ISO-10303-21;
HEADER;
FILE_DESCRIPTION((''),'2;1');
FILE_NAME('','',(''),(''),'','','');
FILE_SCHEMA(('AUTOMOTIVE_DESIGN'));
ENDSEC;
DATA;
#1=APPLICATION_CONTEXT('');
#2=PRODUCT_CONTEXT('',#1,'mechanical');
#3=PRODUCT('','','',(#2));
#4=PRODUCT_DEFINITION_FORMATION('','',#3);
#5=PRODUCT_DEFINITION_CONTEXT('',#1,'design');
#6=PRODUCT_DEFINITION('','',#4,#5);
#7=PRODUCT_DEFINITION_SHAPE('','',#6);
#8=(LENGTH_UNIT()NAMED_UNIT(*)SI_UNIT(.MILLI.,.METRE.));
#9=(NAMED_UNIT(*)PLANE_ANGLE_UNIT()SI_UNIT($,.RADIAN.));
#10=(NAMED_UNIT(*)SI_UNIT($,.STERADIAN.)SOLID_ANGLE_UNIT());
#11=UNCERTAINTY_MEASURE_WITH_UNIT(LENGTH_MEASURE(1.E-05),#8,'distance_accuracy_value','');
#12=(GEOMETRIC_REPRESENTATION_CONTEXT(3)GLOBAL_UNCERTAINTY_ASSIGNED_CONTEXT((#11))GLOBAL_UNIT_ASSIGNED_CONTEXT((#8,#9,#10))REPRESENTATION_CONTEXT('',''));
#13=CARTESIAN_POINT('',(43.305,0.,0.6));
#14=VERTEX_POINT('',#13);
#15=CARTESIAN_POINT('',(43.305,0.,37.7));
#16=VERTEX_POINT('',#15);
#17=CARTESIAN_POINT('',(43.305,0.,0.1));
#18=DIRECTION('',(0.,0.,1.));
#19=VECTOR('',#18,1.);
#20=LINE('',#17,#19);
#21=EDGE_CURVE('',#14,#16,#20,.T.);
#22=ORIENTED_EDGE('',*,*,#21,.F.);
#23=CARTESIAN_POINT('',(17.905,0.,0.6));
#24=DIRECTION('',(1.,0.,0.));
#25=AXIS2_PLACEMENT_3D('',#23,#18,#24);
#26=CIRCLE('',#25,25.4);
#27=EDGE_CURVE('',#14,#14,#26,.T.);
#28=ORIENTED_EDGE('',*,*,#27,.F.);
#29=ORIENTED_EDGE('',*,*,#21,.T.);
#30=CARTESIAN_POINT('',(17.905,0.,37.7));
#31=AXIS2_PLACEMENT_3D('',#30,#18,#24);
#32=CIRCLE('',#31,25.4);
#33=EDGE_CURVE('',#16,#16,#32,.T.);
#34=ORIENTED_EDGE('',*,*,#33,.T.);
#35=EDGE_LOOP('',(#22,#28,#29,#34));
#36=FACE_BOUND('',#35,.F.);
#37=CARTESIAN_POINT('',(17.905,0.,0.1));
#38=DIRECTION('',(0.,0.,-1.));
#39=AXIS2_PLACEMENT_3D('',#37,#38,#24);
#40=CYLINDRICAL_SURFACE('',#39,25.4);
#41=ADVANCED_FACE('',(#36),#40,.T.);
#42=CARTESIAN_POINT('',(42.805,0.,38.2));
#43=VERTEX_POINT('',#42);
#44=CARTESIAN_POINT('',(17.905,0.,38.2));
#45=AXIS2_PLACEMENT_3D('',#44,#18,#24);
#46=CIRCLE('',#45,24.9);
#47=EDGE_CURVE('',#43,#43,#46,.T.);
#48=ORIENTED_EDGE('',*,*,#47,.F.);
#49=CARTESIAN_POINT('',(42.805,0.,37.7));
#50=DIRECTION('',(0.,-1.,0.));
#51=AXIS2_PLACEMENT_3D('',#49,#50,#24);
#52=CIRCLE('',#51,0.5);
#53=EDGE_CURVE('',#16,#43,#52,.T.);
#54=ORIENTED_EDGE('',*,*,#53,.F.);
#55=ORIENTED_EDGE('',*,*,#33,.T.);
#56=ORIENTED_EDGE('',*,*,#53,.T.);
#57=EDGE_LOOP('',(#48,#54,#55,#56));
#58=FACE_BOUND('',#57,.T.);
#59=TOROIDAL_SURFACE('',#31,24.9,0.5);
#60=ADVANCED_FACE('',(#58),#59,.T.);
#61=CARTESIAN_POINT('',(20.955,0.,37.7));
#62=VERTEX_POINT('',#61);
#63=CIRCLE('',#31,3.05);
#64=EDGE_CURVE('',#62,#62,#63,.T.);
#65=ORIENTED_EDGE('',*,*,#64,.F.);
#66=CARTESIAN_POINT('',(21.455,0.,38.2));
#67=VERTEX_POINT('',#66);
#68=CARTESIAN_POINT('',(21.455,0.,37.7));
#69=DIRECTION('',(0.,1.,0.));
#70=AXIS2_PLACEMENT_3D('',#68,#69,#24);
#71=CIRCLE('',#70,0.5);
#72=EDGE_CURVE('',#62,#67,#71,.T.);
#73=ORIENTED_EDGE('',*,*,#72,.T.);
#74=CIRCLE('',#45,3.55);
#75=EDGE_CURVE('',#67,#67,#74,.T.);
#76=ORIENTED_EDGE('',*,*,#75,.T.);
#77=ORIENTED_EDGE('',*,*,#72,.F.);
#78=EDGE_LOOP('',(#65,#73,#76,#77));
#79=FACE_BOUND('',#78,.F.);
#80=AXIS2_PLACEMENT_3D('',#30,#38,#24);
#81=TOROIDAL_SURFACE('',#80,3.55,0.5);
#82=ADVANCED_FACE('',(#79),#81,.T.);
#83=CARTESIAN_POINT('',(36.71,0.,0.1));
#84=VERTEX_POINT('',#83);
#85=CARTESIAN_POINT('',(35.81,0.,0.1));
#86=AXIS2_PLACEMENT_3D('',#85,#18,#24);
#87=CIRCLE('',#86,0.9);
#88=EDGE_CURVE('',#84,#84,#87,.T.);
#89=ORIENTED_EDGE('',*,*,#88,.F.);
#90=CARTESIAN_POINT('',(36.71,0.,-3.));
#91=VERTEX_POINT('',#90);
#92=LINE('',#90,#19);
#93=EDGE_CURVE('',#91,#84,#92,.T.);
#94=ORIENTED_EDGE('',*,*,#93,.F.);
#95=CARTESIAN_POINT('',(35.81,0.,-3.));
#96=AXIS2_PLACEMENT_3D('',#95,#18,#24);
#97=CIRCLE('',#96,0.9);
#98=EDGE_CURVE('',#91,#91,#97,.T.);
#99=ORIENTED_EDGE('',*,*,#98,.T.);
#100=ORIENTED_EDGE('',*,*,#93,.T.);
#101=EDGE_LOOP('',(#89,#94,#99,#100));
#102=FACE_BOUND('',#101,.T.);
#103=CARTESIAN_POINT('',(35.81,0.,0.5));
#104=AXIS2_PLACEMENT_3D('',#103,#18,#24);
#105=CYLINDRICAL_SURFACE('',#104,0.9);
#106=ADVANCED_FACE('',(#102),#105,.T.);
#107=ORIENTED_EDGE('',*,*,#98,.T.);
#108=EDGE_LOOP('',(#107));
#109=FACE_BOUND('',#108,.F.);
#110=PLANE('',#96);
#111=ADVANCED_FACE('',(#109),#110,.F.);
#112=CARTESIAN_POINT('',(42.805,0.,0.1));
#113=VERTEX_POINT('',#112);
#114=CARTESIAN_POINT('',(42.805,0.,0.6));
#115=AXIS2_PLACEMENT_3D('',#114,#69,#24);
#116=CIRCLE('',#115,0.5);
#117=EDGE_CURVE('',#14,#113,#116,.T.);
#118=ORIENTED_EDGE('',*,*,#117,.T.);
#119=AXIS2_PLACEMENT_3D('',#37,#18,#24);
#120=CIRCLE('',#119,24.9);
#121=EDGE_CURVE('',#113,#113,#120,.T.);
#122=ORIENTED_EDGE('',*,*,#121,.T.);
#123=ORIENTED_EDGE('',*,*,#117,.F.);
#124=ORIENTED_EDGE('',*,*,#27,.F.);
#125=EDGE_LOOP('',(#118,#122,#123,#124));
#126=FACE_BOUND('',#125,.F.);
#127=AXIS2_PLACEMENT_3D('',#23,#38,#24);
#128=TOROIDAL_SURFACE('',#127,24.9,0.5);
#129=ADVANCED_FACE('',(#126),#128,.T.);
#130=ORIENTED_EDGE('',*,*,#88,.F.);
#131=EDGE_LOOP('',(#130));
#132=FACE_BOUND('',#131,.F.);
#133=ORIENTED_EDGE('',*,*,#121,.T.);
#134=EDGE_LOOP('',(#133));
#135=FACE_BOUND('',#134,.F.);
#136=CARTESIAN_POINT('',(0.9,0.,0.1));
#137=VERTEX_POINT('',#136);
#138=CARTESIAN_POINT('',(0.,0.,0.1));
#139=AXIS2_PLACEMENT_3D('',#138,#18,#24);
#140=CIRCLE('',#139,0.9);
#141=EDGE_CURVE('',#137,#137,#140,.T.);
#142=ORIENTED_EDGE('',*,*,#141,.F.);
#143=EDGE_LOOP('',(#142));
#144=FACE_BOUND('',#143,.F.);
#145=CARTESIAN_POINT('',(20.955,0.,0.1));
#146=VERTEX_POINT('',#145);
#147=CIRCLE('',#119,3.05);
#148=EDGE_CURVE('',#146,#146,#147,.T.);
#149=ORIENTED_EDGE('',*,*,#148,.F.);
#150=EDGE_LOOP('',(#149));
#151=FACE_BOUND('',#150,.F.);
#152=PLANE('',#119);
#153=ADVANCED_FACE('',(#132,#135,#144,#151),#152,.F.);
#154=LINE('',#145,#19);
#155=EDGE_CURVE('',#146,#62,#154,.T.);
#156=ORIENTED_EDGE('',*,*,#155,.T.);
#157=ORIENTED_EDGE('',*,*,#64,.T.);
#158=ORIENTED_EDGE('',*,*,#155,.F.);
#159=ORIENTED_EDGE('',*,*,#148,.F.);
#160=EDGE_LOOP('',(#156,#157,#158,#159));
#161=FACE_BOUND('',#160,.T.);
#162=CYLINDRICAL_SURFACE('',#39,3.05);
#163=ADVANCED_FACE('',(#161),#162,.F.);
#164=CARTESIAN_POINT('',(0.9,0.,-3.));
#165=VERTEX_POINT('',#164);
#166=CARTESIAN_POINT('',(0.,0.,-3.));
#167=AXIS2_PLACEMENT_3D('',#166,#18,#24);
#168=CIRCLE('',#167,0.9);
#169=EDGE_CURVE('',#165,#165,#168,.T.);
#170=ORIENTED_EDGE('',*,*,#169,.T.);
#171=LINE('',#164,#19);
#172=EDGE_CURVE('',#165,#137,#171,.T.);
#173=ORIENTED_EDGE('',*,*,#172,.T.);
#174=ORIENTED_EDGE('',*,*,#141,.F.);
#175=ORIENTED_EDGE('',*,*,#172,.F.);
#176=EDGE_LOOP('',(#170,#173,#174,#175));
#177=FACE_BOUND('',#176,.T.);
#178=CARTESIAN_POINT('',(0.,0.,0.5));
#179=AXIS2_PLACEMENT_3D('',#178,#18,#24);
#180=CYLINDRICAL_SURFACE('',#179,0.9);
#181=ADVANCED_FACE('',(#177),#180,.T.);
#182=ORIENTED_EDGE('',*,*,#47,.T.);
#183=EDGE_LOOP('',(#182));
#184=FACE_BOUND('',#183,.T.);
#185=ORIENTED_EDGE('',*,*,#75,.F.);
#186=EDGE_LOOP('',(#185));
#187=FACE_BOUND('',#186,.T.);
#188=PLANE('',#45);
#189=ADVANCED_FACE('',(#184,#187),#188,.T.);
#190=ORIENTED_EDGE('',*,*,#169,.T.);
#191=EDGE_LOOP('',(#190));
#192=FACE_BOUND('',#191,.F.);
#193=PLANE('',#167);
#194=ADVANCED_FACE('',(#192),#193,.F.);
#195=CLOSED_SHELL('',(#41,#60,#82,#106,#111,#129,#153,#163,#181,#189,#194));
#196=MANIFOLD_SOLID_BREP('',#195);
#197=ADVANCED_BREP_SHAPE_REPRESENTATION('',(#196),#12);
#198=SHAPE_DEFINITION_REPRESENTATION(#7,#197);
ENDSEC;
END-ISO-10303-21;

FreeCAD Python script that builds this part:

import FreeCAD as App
import Part
import Sketcher

V = App.Vector
Q = App.Units.Quantity


def edges_at(feature, points):
    """Names of the edges that pass closest to the given points."""
    edges = feature.Shape.Edges
    near = lambda p: min(range(len(edges)), key=lambda i: edges[i].distToShape(Part.Vertex(*p))[0])
    return sorted({f"Edge{near(p) + 1}" for p in points})

doc = App.newDocument("Part")
body = doc.addObject("PartDesign::Body", "Body")

sketch1 = doc.addObject("Sketcher::SketchObject", "Sketch")
body.addObject(sketch1)
sketch1.AttachmentSupport = (doc.XY_Plane, [""])
sketch1.MapMode = "FlatFace"
sketch1.AttachmentOffset = App.Placement(V(0, 0, 0.1), App.Rotation())
sketch1.addGeometry(Part.Circle(V(17.9, 0, 0), V(0, 0, 1), 25.4), False)
sketch1.addGeometry(Part.Circle(V(17.9, 0, 0), V(0, 0, 1), 3), False)
sketch1.addConstraint(Sketcher.Constraint("Coincident", 1, 3, 0, 3))
sketch1.addConstraint(Sketcher.Constraint("PointOnObject", 0, 3, -1))
sketch1.addConstraint(Sketcher.Constraint("Diameter", 0, Q("50.8 mm")))
sketch1.addConstraint(Sketcher.Constraint("Diameter", 1, Q("6.1 mm")))
sketch1.addConstraint(Sketcher.Constraint("DistanceX", -1, 1, 0, 3, Q("17.905 mm")))
pad1 = doc.addObject("PartDesign::Pad", "Pad")
body.addObject(pad1)
pad1.Profile = sketch1
pad1.Length = 38.1
doc.recompute()

fillet = doc.addObject("PartDesign::Fillet", "Fillet")
body.addObject(fillet)
fillet.Base = (pad1, edges_at(pad1, [(14.855, 0, 38.2), (-7.495, 0, 38.2), (-7.495, 0, 0.1)]))
fillet.Radius = 0.5
body2 = doc.addObject("PartDesign::Body", "Body001")
body2.AllowCompound = True

sketch2 = doc.addObject("Sketcher::SketchObject", "Sketch001")
body2.addObject(sketch2)
sketch2.AttachmentSupport = (doc.getObject("XY_Plane001"), [""])
sketch2.MapMode = "FlatFace"
sketch2.AttachmentOffset = App.Placement(V(0, 0, 0.5), App.Rotation())
sketch2.addGeometry(Part.Circle(V(0, 0, 0), V(0, 0, 1), 0.9), False)
sketch2.addGeometry(Part.Circle(V(35.8, 0, 0), V(0, 0, 1), 0.9), False)
sketch2.addConstraint(Sketcher.Constraint("Coincident", 0, 3, -1, 1))
sketch2.addConstraint(Sketcher.Constraint("Equal", 0, 1))
sketch2.addConstraint(Sketcher.Constraint("PointOnObject", 1, 3, -1))
sketch2.addConstraint(Sketcher.Constraint("Diameter", 0, Q("1.8 mm")))
sketch2.addConstraint(Sketcher.Constraint("DistanceX", -1, 1, 1, 3, Q("35.81 mm")))
pad2 = doc.addObject("PartDesign::Pad", "Pad001")
body2.addObject(pad2)
pad2.Profile = sketch2
pad2.Type = "TwoLengths"
pad2.Length = 19.05
pad2.Length2 = 3.5
doc.recompute()

boolean = doc.addObject("PartDesign::Boolean", "Boolean")
body2.addObject(boolean)
boolean.Type = "Fuse"
boolean.addObjects([body])

doc.recompute()
